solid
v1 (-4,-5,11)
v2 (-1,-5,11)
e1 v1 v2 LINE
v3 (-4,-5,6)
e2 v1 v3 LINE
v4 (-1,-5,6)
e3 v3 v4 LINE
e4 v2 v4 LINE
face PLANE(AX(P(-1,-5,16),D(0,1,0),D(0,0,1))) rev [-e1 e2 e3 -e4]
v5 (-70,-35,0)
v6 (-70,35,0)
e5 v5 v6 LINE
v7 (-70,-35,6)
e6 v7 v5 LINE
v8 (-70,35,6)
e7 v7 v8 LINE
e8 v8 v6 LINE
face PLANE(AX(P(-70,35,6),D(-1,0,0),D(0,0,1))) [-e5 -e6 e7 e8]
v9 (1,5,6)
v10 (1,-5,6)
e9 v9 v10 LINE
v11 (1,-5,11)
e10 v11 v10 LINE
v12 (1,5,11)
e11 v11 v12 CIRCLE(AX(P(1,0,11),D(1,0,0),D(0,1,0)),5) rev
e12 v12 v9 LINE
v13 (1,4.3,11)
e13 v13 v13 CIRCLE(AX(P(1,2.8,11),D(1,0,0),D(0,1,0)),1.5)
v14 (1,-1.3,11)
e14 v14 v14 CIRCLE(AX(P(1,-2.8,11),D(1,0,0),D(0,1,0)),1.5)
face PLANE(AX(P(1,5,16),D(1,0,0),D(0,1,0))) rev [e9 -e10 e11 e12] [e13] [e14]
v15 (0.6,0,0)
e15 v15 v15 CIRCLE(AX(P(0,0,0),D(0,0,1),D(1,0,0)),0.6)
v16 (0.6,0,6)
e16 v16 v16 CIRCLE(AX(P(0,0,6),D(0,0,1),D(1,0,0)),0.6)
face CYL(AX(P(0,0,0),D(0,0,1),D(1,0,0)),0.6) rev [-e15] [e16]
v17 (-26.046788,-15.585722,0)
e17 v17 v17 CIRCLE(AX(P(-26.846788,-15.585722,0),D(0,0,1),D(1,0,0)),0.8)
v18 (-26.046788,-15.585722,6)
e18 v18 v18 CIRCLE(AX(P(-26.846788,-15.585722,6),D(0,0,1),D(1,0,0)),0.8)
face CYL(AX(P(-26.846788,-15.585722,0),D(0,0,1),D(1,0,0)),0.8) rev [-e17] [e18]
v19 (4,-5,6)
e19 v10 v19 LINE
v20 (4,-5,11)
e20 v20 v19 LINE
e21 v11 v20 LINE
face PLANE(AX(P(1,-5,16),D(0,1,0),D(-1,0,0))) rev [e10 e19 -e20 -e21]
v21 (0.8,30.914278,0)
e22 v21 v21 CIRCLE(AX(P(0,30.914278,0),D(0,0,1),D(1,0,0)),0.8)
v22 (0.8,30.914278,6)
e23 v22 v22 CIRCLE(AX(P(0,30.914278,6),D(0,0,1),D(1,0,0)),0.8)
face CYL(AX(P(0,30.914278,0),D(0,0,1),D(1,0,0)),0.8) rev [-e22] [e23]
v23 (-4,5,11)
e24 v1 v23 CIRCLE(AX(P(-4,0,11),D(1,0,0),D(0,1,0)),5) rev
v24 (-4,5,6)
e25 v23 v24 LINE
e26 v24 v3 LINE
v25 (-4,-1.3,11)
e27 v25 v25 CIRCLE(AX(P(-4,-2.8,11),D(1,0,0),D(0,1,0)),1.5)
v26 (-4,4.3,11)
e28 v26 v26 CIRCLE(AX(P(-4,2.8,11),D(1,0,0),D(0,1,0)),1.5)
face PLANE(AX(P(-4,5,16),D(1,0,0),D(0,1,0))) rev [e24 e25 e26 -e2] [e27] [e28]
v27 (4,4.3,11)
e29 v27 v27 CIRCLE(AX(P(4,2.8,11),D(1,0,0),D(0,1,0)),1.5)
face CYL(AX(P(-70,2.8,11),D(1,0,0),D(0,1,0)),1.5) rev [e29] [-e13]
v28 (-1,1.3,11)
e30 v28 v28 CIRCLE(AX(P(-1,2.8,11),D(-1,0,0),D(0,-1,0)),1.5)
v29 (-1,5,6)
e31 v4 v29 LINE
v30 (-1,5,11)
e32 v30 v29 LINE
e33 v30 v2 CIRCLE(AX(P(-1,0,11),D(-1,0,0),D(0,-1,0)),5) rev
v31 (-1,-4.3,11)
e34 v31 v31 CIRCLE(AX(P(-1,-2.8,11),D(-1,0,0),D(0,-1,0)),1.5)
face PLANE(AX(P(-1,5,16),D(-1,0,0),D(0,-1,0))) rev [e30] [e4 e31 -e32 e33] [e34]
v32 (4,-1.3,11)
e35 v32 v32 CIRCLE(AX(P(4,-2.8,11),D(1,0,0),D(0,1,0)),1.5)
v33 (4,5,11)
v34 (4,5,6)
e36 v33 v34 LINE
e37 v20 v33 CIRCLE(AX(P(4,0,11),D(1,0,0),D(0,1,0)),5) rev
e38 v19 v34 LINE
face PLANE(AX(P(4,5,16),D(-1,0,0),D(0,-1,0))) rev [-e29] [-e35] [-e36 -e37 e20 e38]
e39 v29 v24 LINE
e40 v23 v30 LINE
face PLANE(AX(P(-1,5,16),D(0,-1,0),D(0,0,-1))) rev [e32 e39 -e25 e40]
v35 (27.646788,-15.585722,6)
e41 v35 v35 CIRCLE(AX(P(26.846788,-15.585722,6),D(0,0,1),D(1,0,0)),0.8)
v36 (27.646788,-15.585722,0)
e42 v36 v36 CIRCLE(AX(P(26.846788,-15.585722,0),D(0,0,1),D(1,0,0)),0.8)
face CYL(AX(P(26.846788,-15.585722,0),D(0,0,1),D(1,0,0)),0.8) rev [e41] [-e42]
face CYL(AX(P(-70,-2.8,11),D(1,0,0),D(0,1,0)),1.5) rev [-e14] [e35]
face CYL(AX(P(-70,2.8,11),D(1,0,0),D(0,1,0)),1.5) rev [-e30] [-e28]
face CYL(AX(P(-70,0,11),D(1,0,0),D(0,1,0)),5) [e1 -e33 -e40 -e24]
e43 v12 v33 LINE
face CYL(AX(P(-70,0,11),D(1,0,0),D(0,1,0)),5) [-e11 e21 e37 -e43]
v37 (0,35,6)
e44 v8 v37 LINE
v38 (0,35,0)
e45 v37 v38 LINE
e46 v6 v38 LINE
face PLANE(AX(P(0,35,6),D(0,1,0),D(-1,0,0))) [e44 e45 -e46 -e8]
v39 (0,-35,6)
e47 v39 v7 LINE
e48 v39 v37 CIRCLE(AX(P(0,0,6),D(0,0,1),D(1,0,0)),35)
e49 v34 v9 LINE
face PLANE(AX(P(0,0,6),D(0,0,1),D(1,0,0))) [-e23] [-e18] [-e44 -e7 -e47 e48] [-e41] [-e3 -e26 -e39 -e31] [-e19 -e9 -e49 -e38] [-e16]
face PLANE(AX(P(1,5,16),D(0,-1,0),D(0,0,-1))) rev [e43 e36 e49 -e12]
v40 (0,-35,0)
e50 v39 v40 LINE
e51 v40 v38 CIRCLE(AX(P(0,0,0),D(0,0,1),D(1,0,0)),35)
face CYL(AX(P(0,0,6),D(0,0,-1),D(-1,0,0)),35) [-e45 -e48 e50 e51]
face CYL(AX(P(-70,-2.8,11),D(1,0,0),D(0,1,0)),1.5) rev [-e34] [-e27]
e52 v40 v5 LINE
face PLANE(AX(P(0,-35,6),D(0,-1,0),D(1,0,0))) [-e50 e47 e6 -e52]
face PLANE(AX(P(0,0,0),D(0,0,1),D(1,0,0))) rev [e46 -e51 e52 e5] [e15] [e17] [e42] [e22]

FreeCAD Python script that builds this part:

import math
import FreeCAD as App
import Part
import Sketcher
from FreeCAD import Vector
Q = App.Units.Quantity


def add_polygon(sketch, points):
    """Adds a closed chain of lines whose ends are joined by coincident constraints."""
    first, n = sketch.GeometryCount, len(points)
    for a, b in zip(points, points[1:] + points[:1]):
        sketch.addGeometry(Part.LineSegment(App.Vector(*a, 0), App.Vector(*b, 0)), False)
    for i in range(n):
        sketch.addConstraint(Sketcher.Constraint("Coincident", first + i, 2, first + (i + 1) % n, 1))

doc = App.newDocument("Part")
params = doc.addObject("Spreadsheet::Sheet", "Params")
for row, (alias, value) in enumerate([
    ("sketch1_diameter", "70 mm"),
    ("pad1_length", "6 mm"),
    ("sketch2_width", "70 mm"),
    ("pad2_length", "6 mm"),
    ("sketch3_diameter", "1.6 mm"),
    ("pocket1_length", "6 mm"),
    ("sketch4_diameter", "1.2 mm"),
    ("pocket2_length", "6 mm"),
    ("sketch5_width", "3 mm"),
    ("sketch5_height", "10 mm"),
    ("pad3_length", "10 mm"),
    ("sketch6_radius", "5 mm"),
    ("sketch7_diameter", "3 mm"),
], start=1):
    params.set(f"A{row}", alias)
    params.set(f"B{row}", "=" + value)
    params.setAlias(f"B{row}", alias)

body = doc.addObject("PartDesign::Body", "Body")

# Sketch on XY plane
sketch1 = doc.addObject("Sketcher::SketchObject", "Sketch")
body.addObject(sketch1)
sketch1.AttachmentSupport = (doc.XY_Plane, [""])
sketch1.MapMode = "FlatFace"
sketch1.addGeometry(Part.Circle(Vector(0, 0, 0), Vector(0, 0, 1), 35), False)
sketch1.addConstraint([
    Sketcher.Constraint("Coincident", 0, 3, -1, 1),
    Sketcher.Constraint("Diameter", 0, Q("70 mm")),
])
sketch1.setExpression("Constraints[1]", "Params.sketch1_diameter")
pad1 = doc.addObject("PartDesign::Pad", "Pad")
body.addObject(pad1)
pad1.Profile = sketch1
pad1.setExpression("Length", "Params.pad1_length")

# Sketch on XY plane
sketch2 = doc.addObject("Sketcher::SketchObject", "Sketch001")
body.addObject(sketch2)
sketch2.AttachmentSupport = (doc.XY_Plane, [""])
sketch2.MapMode = "FlatFace"
add_polygon(sketch2, [(0, 35), (0, -35), (-70, -35), (-70, 35)])  # lines 0-3
sketch2.addConstraint([
    Sketcher.Constraint("Vertical", 0),
    Sketcher.Constraint("Horizontal", 1),
    Sketcher.Constraint("Vertical", 2),
    Sketcher.Constraint("Horizontal", 3),
    Sketcher.Constraint("Symmetric", 0, 2, 3, 2, -1, 1),
    Sketcher.Constraint("Equal", 3, 0),
    Sketcher.Constraint("DistanceX", 1, 2, 1, 1, Q("70 mm")),
])
sketch2.setExpression("Constraints[10]", "Params.sketch2_width")
pad2 = doc.addObject("PartDesign::Pad", "Pad001")
body.addObject(pad2)
pad2.Profile = sketch2
pad2.setExpression("Length", "Params.pad2_length")

# Sketch on XY plane
sketch3 = doc.addObject("Sketcher::SketchObject", "Sketch002")
body.addObject(sketch3)
sketch3.AttachmentSupport = (doc.XY_Plane, [""])
sketch3.MapMode = "FlatFace"
sketch3.AttachmentOffset = App.Placement(Vector(0, 0, 6), App.Rotation())
sketch3.addGeometry([
    Part.Circle(Vector(0, 30.914278, 0), Vector(0, 0, 1), 0.8),
    Part.Circle(Vector(26.846788, -15.585722, 0), Vector(0, 0, 1), 0.8),
    Part.Circle(Vector(-26.846788, -15.585722, 0), Vector(0, 0, 1), 0.8),
], False)
sketch3.addConstraint([
    Sketcher.Constraint("Equal", 0, 1),
    Sketcher.Constraint("Equal", 1, 2),
    Sketcher.Constraint("Symmetric", 1, 3, 2, 3, -2),
    Sketcher.Constraint("PointOnObject", 0, 3, -2),
    Sketcher.Constraint("Diameter", 0, Q("1.6 mm")),
    Sketcher.Constraint("DistanceY", 1, 3, 0, 3, Q("46.5 mm")),
    Sketcher.Constraint("DistanceY", -1, 1, 0, 3, Q("30.914278 mm")),
    Sketcher.Constraint("DistanceX", -1, 1, 1, 3, Q("26.846788 mm")),
])
sketch3.setExpression("Constraints[4]", "Params.sketch3_diameter")
pocket1 = doc.addObject("PartDesign::Pocket", "Pocket")
body.addObject(pocket1)
pocket1.Profile = sketch3
pocket1.setExpression("Length", "Params.pocket1_length")

# Sketch on XY plane
sketch4 = doc.addObject("Sketcher::SketchObject", "Sketch003")
body.addObject(sketch4)
sketch4.AttachmentSupport = (doc.XY_Plane, [""])
sketch4.MapMode = "FlatFace"
sketch4.AttachmentOffset = App.Placement(Vector(0, 0, 6), App.Rotation())
sketch4.addGeometry(Part.Circle(Vector(0, 0, 0), Vector(0, 0, 1), 0.6), False)
sketch4.addConstraint([
    Sketcher.Constraint("Coincident", 0, 3, -1, 1),
    Sketcher.Constraint("Diameter", 0, Q("1.2 mm")),
])
sketch4.setExpression("Constraints[1]", "Params.sketch4_diameter")
pocket2 = doc.addObject("PartDesign::Pocket", "Pocket001")
body.addObject(pocket2)
pocket2.Profile = sketch4
pocket2.setExpression("Length", "Params.pocket2_length")

# Sketch on XY plane
sketch5 = doc.addObject("Sketcher::SketchObject", "Sketch004")
body.addObject(sketch5)
sketch5.AttachmentSupport = (doc.XY_Plane, [""])
sketch5.MapMode = "FlatFace"
sketch5.AttachmentOffset = App.Placement(Vector(0, 0, 6), App.Rotation())
add_polygon(sketch5, [(1, 5), (1, -5), (4, -5), (4, 5)])  # lines 0-3
add_polygon(sketch5, [(-4, 5), (-4, -5), (-1, -5), (-1, 5)])  # lines 4-7
sketch5.addConstraint([
    Sketcher.Constraint("Vertical", 0),
    Sketcher.Constraint("Horizontal", 1),
    Sketcher.Constraint("Vertical", 2),
    Sketcher.Constraint("Horizontal", 3),
    Sketcher.Constraint("Vertical", 4),
    Sketcher.Constraint("Horizontal", 5),
    Sketcher.Constraint("Vertical", 6),
    Sketcher.Constraint("Horizontal", 7),
    Sketcher.Constraint("Symmetric", 2, 2, 4, 2, -1, 1),
    Sketcher.Constraint("Symmetric", 0, 2, 6, 2, -1, 1),
    Sketcher.Constraint("Horizontal", 1, 2, 4, 2),
    Sketcher.Constraint("DistanceX", 1, 1, 1, 2, Q("3 mm")),
    Sketcher.Constraint("DistanceY", 0, 2, 0, 1, Q("10 mm")),
    Sketcher.Constraint("DistanceX", -1, 1, 0, 2, Q("1 mm")),
])
sketch5.setExpression("Constraints[19]", "Params.sketch5_width")
sketch5.setExpression("Constraints[20]", "Params.sketch5_height")
pad3 = doc.addObject("PartDesign::Pad", "Pad002")
body.addObject(pad3)
pad3.Profile = sketch5
pad3.setExpression("Length", "Params.pad3_length")

# Sketch on YZ plane
sketch6 = doc.addObject("Sketcher::SketchObject", "Sketch005")
body.addObject(sketch6)
sketch6.AttachmentSupport = (doc.YZ_Plane, [""])
sketch6.MapMode = "FlatFace"
sketch6.AttachmentOffset = App.Placement(Vector(0, 0, 4), App.Rotation())
sketch6.addGeometry([
    Part.ArcOfCircle(Part.Circle(Vector(0, 11, 0), Vector(0, 0, 1), 5), math.radians(0), math.radians(90)),  # 0
    Part.LineSegment(Vector(5, 11, 0), Vector(5, 16, 0)),  # 1
    Part.LineSegment(Vector(5, 16, 0), Vector(0, 16, 0)),  # 2
    Part.ArcOfCircle(Part.Circle(Vector(0, 11, 0), Vector(0, 0, 1), 5), math.radians(90), math.radians(180)),  # 3
    Part.LineSegment(Vector(0, 16, 0), Vector(-5, 16, 0)),  # 4
    Part.LineSegment(Vector(-5, 16, 0), Vector(-5, 11, 0)),  # 5
], False)
sketch6.addConstraint([
    Sketcher.Constraint("Tangent", 0, 1, 1, 1),
    Sketcher.Constraint("Coincident", 1, 2, 2, 1),
    Sketcher.Constraint("Tangent", 2, 2, 0, 2),
    Sketcher.Constraint("Tangent", 3, 1, 4, 1),
    Sketcher.Constraint("Coincident", 4, 2, 5, 1),
    Sketcher.Constraint("Tangent", 5, 2, 3, 2),
    Sketcher.Constraint("Vertical", 1),
    Sketcher.Constraint("Horizontal", 2),
    Sketcher.Constraint("Horizontal", 4),
    Sketcher.Constraint("Vertical", 5),
    Sketcher.Constraint("Coincident", 3, 3, 0, 3),
    Sketcher.Constraint("Equal", 0, 3),
    Sketcher.Constraint("PointOnObject", 0, 3, -2),
    Sketcher.Constraint("Radius", 0, Q("5 mm")),
    Sketcher.Constraint("DistanceY", -1, 1, 0, 3, Q("11 mm")),
])
sketch6.setExpression("Constraints[13]", "Params.sketch6_radius")
pocket3 = doc.addObject("PartDesign::Pocket", "Pocket002")
body.addObject(pocket3)
pocket3.Profile = sketch6
pocket3.Type = "ThroughAll"

# Sketch on YZ plane
sketch7 = doc.addObject("Sketcher::SketchObject", "Sketch006")
body.addObject(sketch7)
sketch7.AttachmentSupport = (doc.YZ_Plane, [""])
sketch7.MapMode = "FlatFace"
sketch7.AttachmentOffset = App.Placement(Vector(0, 0, 4), App.Rotation())
sketch7.addGeometry([
    Part.Circle(Vector(2.8, 11, 0), Vector(0, 0, 1), 1.5),
    Part.Circle(Vector(-2.8, 11, 0), Vector(0, 0, 1), 1.5),
], False)
sketch7.addConstraint([
    Sketcher.Constraint("Equal", 0, 1),
    Sketcher.Constraint("Symmetric", 0, 3, 1, 3, -2),
    Sketcher.Constraint("Diameter", 0, Q("3 mm")),
    Sketcher.Constraint("DistanceY", -1, 1, 0, 3, Q("11 mm")),
    Sketcher.Constraint("DistanceX", -1, 1, 0, 3, Q("2.8 mm")),
])
sketch7.setExpression("Constraints[2]", "Params.sketch7_diameter")
pocket4 = doc.addObject("PartDesign::Pocket", "Pocket003")
body.addObject(pocket4)
pocket4.Profile = sketch7
pocket4.Type = "ThroughAll"

doc.recompute()
